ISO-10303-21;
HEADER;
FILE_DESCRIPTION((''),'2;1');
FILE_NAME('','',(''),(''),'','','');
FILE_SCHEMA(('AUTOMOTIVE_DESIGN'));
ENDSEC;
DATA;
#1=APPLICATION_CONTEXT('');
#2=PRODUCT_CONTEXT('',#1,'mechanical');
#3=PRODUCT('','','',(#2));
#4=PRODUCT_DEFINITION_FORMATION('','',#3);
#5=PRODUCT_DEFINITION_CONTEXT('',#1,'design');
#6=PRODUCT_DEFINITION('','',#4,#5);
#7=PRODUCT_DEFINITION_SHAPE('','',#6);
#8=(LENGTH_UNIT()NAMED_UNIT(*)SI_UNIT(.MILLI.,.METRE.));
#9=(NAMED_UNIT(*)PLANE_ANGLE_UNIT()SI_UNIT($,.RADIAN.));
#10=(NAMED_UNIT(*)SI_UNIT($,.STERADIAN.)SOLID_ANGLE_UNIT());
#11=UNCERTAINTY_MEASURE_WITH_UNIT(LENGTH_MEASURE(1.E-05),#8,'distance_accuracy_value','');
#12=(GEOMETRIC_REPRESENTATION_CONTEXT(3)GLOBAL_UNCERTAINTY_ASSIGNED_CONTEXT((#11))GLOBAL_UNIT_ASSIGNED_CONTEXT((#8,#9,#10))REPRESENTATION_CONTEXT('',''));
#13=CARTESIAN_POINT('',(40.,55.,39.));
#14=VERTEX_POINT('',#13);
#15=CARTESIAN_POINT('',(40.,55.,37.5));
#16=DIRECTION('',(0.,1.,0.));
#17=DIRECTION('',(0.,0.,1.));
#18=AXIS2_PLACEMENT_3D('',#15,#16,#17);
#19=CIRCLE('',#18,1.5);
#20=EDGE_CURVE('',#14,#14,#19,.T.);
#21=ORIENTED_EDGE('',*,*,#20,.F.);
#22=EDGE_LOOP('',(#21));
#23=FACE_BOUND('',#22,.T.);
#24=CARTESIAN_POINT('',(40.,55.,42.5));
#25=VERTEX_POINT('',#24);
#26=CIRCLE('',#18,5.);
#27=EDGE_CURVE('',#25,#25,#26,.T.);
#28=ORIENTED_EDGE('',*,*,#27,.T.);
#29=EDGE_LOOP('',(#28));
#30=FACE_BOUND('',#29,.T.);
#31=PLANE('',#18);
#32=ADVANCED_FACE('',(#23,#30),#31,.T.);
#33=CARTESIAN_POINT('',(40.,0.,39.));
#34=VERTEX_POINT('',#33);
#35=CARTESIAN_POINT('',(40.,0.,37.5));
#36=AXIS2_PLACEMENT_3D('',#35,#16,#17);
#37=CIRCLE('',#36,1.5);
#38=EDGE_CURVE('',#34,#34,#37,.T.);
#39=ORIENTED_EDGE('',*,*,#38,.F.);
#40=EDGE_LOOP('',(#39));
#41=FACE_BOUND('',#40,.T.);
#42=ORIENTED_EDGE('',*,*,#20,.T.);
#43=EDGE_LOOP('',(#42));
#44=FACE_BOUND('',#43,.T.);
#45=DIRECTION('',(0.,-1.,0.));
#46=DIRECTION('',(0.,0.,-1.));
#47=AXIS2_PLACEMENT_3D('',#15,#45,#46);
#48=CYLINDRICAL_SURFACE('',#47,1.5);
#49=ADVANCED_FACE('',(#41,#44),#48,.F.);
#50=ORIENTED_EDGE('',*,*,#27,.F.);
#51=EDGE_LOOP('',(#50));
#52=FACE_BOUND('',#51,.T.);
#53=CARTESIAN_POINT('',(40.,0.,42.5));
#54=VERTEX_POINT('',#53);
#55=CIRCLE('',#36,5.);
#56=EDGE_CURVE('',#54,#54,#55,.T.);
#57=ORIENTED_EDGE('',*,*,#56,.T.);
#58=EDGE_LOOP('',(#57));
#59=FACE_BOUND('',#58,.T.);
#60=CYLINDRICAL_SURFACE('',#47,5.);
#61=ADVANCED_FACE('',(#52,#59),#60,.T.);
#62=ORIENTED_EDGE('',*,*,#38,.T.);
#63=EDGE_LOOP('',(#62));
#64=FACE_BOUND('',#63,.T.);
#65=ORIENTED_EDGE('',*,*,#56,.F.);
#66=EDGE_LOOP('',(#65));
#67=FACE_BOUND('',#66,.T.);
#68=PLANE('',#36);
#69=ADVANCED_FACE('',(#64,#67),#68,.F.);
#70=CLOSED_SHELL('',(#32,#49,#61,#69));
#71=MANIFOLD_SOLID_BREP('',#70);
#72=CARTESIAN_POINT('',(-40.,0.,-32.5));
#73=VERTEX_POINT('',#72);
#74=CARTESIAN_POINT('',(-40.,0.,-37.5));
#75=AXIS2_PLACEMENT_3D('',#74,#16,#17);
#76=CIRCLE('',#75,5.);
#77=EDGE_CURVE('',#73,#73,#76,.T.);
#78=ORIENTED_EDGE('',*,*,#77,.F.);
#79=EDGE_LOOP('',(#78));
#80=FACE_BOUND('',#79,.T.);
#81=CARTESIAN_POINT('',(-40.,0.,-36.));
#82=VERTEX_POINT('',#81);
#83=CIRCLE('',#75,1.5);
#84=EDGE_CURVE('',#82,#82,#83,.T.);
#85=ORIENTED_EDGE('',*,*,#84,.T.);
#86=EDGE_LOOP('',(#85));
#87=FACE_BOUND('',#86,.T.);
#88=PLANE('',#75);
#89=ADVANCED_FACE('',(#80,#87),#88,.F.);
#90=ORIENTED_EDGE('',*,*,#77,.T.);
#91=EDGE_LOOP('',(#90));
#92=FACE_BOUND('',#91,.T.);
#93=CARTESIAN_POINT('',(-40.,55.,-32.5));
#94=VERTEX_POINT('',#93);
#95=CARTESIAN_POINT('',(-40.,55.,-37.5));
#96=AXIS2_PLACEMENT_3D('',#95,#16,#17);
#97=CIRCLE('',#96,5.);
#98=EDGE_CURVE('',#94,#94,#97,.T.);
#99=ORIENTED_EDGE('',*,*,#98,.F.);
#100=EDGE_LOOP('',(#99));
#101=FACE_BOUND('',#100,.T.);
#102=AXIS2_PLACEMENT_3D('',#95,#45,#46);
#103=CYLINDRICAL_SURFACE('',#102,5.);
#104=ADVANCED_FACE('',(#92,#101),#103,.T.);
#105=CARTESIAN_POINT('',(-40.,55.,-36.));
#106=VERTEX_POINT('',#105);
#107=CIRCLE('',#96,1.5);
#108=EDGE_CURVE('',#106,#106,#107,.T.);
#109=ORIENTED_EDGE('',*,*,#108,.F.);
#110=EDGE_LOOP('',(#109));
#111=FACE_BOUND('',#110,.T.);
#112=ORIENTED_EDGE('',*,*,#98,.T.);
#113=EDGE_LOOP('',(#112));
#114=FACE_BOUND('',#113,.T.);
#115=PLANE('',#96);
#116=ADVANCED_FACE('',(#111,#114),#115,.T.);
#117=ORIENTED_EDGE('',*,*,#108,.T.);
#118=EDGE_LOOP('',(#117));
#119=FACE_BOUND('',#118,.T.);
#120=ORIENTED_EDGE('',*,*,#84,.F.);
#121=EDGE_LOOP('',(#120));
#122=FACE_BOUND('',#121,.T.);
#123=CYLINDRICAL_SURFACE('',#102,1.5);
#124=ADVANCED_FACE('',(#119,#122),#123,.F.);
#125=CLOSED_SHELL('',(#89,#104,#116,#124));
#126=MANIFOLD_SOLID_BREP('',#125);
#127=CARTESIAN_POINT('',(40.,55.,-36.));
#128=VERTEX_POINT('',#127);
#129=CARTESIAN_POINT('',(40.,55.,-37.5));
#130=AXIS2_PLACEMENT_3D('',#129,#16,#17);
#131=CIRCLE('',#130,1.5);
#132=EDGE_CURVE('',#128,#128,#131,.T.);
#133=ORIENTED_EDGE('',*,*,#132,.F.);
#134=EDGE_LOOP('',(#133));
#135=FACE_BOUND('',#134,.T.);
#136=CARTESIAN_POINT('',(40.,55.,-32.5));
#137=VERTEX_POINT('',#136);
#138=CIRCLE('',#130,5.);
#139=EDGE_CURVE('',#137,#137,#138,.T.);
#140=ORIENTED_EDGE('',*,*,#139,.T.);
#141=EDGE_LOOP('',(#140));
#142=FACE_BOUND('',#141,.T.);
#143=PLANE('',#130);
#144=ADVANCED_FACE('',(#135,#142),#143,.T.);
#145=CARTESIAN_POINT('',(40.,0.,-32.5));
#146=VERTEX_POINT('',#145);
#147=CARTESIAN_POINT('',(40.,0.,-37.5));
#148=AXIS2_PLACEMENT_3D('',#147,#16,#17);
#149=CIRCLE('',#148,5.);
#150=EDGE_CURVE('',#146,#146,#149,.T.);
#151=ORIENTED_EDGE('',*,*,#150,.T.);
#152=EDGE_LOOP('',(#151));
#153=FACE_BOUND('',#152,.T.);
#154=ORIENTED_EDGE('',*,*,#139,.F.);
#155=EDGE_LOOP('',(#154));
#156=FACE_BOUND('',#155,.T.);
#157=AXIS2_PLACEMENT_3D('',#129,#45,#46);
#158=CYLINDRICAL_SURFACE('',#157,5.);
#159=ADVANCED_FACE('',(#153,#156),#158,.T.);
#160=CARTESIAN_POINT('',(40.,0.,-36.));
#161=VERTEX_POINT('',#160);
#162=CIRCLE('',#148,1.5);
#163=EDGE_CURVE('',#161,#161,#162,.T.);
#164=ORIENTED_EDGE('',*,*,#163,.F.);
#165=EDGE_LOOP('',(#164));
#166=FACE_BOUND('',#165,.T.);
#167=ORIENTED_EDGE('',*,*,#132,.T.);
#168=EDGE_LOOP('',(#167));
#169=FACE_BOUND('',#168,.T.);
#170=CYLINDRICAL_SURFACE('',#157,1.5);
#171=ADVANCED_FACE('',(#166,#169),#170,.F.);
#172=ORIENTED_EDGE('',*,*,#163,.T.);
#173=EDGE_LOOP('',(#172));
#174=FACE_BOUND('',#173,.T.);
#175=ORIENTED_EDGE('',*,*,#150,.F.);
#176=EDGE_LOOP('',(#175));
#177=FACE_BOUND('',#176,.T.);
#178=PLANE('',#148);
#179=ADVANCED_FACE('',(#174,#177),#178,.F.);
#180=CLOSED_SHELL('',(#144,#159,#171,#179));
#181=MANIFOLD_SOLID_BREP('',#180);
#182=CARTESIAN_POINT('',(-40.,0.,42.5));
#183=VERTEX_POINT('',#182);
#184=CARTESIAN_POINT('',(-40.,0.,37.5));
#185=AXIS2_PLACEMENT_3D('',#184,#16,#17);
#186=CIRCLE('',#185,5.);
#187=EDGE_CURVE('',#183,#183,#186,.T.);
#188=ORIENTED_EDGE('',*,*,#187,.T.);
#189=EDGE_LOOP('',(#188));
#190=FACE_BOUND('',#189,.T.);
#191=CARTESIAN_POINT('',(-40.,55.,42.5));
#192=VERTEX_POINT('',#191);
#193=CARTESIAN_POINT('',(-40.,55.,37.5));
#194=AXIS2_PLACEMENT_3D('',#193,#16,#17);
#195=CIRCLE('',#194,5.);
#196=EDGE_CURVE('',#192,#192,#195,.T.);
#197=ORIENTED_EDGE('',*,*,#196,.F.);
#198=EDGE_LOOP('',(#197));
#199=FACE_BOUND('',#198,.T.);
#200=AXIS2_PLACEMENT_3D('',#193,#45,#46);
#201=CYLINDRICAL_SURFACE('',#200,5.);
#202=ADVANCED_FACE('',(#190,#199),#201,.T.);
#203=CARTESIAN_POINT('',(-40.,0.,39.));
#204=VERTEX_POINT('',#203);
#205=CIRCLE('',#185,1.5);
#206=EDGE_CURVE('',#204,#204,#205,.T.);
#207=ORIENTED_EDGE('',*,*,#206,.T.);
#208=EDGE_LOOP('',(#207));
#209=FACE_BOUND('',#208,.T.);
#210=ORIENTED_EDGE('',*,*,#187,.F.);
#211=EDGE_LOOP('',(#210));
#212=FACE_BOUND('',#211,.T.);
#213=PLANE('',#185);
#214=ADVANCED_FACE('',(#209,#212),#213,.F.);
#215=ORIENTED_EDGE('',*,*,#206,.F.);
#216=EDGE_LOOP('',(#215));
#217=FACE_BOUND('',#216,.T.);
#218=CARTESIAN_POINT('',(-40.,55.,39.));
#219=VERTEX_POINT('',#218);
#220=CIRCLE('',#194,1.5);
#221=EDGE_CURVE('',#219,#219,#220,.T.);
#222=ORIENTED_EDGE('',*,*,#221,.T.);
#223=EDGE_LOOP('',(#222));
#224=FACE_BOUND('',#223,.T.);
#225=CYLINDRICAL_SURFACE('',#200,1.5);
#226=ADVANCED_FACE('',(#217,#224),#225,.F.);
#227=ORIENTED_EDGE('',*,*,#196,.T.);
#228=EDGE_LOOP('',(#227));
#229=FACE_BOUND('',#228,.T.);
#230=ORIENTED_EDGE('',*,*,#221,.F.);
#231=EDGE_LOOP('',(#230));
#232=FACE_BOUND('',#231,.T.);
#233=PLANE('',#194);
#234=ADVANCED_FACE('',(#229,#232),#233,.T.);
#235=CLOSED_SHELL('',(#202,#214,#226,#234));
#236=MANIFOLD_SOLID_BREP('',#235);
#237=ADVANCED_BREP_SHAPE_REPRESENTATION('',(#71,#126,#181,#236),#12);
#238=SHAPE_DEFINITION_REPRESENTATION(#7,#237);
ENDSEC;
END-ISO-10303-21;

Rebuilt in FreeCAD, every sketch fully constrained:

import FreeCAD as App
import Part
import Sketcher
from FreeCAD import Vector

doc = App.newDocument("Part")
body = doc.addObject("PartDesign::Body", "Body")

# Sketch on XZ plane
sketch1 = body.newObject("Sketcher::SketchObject", "Sketch")
sketch1.AttachmentSupport = (doc.getObject("XZ_Plane"), [""])
sketch1.MapMode = "FlatFace"
sketch1.addGeometry(Part.Circle(Vector(-40, -37.5, 0), Vector(0, 0, 1), 5), False)
sketch1.addGeometry(Part.Circle(Vector(-40, -37.5, 0), Vector(0, 0, 1), 1.5), False)
sketch1.addConstraint(Sketcher.Constraint("Coincident", 1, 3, 0, 3))
sketch1.addConstraint(Sketcher.Constraint("Diameter", 0, 10.0))
sketch1.addConstraint(Sketcher.Constraint("Diameter", 1, 3.0))
sketch1.addConstraint(Sketcher.Constraint("DistanceX", 0, 3, -1, 1, 40.0))
sketch1.addConstraint(Sketcher.Constraint("DistanceY", 0, 3, -1, 1, 37.5))
pad1 = body.newObject("PartDesign::Pad", "Pad")
pad1.Profile = sketch1
pad1.Length = 55
pad1.Reversed = True
body2 = doc.addObject("PartDesign::Body", "Body001")

# Sketch on XZ plane
sketch2 = body2.newObject("Sketcher::SketchObject", "Sketch001")
sketch2.AttachmentSupport = (doc.getObject("XZ_Plane001"), [""])
sketch2.MapMode = "FlatFace"
sketch2.addGeometry(Part.Circle(Vector(40, -37.5, 0), Vector(0, 0, 1), 5), False)
sketch2.addGeometry(Part.Circle(Vector(40, -37.5, 0), Vector(0, 0, 1), 1.5), False)
sketch2.addConstraint(Sketcher.Constraint("Coincident", 1, 3, 0, 3))
sketch2.addConstraint(Sketcher.Constraint("Diameter", 0, 10.0))
sketch2.addConstraint(Sketcher.Constraint("Diameter", 1, 3.0))
sketch2.addConstraint(Sketcher.Constraint("DistanceX", -1, 1, 0, 3, 40.0))
sketch2.addConstraint(Sketcher.Constraint("DistanceY", 0, 3, -1, 1, 37.5))
pad2 = body2.newObject("PartDesign::Pad", "Pad001")
pad2.Profile = sketch2
pad2.Length = 55
pad2.Reversed = True
body3 = doc.addObject("PartDesign::Body", "Body002")

# Sketch on XZ plane
sketch3 = body3.newObject("Sketcher::SketchObject", "Sketch002")
sketch3.AttachmentSupport = (doc.getObject("XZ_Plane002"), [""])
sketch3.MapMode = "FlatFace"
sketch3.addGeometry(Part.Circle(Vector(40, 37.5, 0), Vector(0, 0, 1), 5), False)
sketch3.addGeometry(Part.Circle(Vector(40, 37.5, 0), Vector(0, 0, 1), 1.5), False)
sketch3.addConstraint(Sketcher.Constraint("Coincident", 1, 3, 0, 3))
sketch3.addConstraint(Sketcher.Constraint("Diameter", 0, 10.0))
sketch3.addConstraint(Sketcher.Constraint("Diameter", 1, 3.0))
sketch3.addConstraint(Sketcher.Constraint("DistanceX", -1, 1, 0, 3, 40.0))
sketch3.addConstraint(Sketcher.Constraint("DistanceY", -1, 1, 0, 3, 37.5))
pad3 = body3.newObject("PartDesign::Pad", "Pad002")
pad3.Profile = sketch3
pad3.Length = 55
pad3.Reversed = True
body4 = doc.addObject("PartDesign::Body", "Body003")

# Sketch on XZ plane
sketch4 = body4.newObject("Sketcher::SketchObject", "Sketch003")
sketch4.AttachmentSupport = (doc.getObject("XZ_Plane003"), [""])
sketch4.MapMode = "FlatFace"
sketch4.addGeometry(Part.Circle(Vector(-40, 37.5, 0), Vector(0, 0, 1), 5), False)
sketch4.addGeometry(Part.Circle(Vector(-40, 37.5, 0), Vector(0, 0, 1), 1.5), False)
sketch4.addConstraint(Sketcher.Constraint("Coincident", 1, 3, 0, 3))
sketch4.addConstraint(Sketcher.Constraint("Diameter", 0, 10.0))
sketch4.addConstraint(Sketcher.Constraint("Diameter", 1, 3.0))
sketch4.addConstraint(Sketcher.Constraint("DistanceX", 0, 3, -1, 1, 40.0))
sketch4.addConstraint(Sketcher.Constraint("DistanceY", -1, 1, 0, 3, 37.5))
pad4 = body4.newObject("PartDesign::Pad", "Pad003")
pad4.Profile = sketch4
pad4.Length = 55
pad4.Reversed = True

doc.recompute()
